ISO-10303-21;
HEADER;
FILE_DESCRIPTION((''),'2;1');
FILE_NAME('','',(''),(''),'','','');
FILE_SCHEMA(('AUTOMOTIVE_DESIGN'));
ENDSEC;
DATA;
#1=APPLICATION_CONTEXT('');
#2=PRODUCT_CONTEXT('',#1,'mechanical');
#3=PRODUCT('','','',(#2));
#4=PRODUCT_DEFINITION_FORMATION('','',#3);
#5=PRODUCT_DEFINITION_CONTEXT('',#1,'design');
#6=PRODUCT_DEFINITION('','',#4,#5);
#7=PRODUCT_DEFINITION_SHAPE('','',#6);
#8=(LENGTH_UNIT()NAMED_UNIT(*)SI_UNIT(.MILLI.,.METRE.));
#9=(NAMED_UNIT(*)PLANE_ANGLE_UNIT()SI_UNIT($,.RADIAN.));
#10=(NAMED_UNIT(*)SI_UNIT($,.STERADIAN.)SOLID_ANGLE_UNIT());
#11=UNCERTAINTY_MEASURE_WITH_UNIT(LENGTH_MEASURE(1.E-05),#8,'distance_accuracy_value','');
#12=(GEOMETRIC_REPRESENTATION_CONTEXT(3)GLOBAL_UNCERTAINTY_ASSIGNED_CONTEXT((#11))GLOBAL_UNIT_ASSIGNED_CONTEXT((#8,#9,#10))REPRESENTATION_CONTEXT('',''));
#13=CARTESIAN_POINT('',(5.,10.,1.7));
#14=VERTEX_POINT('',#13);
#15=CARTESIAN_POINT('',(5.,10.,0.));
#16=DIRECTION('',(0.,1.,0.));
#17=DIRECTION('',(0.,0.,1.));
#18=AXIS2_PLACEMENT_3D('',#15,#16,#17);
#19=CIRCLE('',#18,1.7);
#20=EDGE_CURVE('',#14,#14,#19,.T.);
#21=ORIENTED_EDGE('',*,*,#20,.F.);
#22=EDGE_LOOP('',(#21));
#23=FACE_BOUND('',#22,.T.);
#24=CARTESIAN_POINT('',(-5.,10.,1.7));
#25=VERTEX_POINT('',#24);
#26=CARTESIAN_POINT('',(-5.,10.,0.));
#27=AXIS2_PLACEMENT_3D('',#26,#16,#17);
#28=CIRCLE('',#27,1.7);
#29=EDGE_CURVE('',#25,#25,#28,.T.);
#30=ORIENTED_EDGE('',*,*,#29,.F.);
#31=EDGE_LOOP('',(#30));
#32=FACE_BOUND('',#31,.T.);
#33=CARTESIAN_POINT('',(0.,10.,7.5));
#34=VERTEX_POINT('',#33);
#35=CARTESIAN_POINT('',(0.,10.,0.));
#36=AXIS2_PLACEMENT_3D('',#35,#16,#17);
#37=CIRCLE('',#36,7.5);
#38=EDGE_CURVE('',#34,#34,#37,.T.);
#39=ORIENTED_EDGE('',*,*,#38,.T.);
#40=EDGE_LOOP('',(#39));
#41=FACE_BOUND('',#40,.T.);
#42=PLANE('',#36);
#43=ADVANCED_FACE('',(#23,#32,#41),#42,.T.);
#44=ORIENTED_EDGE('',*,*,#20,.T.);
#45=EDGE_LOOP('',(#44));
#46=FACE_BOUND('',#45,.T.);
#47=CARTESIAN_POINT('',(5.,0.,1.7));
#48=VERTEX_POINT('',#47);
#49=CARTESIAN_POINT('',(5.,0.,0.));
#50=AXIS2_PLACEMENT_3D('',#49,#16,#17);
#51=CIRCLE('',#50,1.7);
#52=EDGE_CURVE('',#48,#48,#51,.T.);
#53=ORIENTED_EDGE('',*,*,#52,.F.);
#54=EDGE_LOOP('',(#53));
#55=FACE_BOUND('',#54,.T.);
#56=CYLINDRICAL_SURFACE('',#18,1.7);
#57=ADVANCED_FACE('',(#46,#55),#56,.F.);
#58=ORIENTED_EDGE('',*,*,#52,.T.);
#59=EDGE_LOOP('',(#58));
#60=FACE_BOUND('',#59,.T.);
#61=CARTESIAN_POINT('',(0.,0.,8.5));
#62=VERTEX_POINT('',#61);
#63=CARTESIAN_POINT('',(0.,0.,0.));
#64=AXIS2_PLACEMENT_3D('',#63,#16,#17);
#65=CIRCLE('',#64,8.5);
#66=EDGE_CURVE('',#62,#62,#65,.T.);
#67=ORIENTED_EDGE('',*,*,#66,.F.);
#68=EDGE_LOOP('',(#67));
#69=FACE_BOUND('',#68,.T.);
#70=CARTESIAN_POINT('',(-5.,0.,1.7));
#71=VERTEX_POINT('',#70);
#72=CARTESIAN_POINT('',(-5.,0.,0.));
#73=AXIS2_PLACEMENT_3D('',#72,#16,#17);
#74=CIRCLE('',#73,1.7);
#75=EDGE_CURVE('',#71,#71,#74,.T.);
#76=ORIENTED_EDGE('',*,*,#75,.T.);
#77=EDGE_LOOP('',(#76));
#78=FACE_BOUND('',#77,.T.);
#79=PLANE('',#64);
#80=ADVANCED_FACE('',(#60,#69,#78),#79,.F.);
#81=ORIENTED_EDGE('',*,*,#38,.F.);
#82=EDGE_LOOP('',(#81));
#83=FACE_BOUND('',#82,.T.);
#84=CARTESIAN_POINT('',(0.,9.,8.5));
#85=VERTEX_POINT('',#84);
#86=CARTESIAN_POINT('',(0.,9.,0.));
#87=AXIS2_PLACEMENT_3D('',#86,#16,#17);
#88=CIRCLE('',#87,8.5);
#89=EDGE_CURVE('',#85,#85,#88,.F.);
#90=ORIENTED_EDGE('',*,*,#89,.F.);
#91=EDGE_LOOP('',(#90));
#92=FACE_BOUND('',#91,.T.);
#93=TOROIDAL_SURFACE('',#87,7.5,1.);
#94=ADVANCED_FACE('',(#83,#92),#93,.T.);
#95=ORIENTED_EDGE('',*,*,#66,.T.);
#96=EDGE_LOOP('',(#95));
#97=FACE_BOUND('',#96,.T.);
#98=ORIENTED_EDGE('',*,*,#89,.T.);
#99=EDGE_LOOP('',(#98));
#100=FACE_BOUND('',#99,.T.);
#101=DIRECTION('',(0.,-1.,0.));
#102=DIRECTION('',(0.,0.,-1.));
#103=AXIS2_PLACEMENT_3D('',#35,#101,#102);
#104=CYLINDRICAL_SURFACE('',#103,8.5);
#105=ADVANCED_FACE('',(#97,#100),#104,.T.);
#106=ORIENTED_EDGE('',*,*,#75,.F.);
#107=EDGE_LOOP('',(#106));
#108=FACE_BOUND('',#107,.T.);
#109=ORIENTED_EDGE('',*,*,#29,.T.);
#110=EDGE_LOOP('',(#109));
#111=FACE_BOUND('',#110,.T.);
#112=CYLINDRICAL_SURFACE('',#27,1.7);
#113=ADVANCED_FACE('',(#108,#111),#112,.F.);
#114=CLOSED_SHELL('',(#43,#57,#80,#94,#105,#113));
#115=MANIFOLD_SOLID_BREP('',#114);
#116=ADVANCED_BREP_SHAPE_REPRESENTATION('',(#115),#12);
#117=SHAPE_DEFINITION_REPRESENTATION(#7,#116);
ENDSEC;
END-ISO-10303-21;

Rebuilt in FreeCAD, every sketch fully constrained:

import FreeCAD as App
import Part
import Sketcher
from FreeCAD import Vector
Q = App.Units.Quantity


def edges_at(feature, points):
    """Names of the edges that pass closest to the given points."""
    edges = feature.Shape.Edges
    near = lambda p: min(range(len(edges)), key=lambda i: edges[i].distToShape(Part.Vertex(*p))[0])
    return sorted({f"Edge{near(p) + 1}" for p in points})

doc = App.newDocument("Part")
params = doc.addObject("Spreadsheet::Sheet", "Params")
for row, (alias, value) in enumerate([
    ("sketch1_diameter", "17 mm"),
    ("pad1_length", "10 mm"),
    ("fillet_radius", "1 mm"),
    ("sketch2_diameter", "3.4 mm"),
    ("hole_diameter", "3.4 mm"),
], start=1):
    params.set(f"A{row}", alias)
    params.set(f"B{row}", "=" + value)
    params.setAlias(f"B{row}", alias)

body = doc.addObject("PartDesign::Body", "Body")

sketch1 = body.newObject("Sketcher::SketchObject", "Sketch")
sketch1.AttachmentSupport = (doc.getObject("XZ_Plane"), [""])
sketch1.MapMode = "FlatFace"
sketch1.addGeometry(Part.Circle(Vector(0, 0, 0), Vector(0, 0, 1), 8), False)
sketch1.addConstraint([
    Sketcher.Constraint("Coincident", 0, 3, -1, 1),
    Sketcher.Constraint("Diameter", 0, Q("17 mm")),
])
sketch1.setExpression("Constraints[1]", "Params.sketch1_diameter")
pad1 = body.newObject("PartDesign::Pad", "Pad")
pad1.Profile = sketch1
pad1.setExpression("Length", "Params.pad1_length")
pad1.Reversed = True
doc.recompute()

fillet = body.newObject("PartDesign::Fillet", "Fillet")
fillet.Base = (pad1, edges_at(pad1, [(0, 10, -8.5)]))
fillet.setExpression("Radius", "Params.fillet_radius")

sketch2 = body.newObject("Sketcher::SketchObject", "Sketch001")
sketch2.AttachmentSupport = (doc.getObject("XZ_Plane"), [""])
sketch2.MapMode = "FlatFace"
sketch2.AttachmentOffset = App.Placement(Vector(0, 0, -10), App.Rotation())
sketch2.addGeometry([
    Part.Circle(Vector(-5, 0, 0), Vector(0, 0, 1), 1.7),
    Part.Circle(Vector(5, 0, 0), Vector(0, 0, 1), 1.7),
], False)
sketch2.addConstraint([
    Sketcher.Constraint("Equal", 0, 1),
    Sketcher.Constraint("Symmetric", 0, 3, 1, 3, -1, 1),
    Sketcher.Constraint("PointOnObject", 0, 3, -1),
    Sketcher.Constraint("Diameter", 0, Q("3.4 mm")),
    Sketcher.Constraint("DistanceX", 0, 3, -1, 1, Q("5 mm")),
])
sketch2.setExpression("Constraints[3]", "Params.sketch2_diameter")
doc.recompute()
hole = body.newObject("PartDesign::Hole", "Hole")
hole.Profile = sketch2
hole.ThreadType = "None"
hole.setExpression("Diameter", "Params.hole_diameter")
hole.DepthType = "ThroughAll"
hole.Reversed = True

doc.recompute()
